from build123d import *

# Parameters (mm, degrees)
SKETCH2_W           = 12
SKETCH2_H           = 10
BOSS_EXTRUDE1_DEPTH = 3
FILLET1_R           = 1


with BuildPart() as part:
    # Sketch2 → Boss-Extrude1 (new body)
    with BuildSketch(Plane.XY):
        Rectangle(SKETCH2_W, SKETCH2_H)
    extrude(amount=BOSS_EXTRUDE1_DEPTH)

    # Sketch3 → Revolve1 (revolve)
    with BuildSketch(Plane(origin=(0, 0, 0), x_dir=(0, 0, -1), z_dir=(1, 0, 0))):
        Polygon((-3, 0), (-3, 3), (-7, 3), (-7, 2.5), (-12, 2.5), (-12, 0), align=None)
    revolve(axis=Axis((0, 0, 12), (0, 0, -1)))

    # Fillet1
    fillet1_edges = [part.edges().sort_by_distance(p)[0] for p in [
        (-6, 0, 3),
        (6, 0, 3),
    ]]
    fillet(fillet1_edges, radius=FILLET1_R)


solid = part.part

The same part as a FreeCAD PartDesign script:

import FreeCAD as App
import Part
import Sketcher
from FreeCAD import Vector


def edges_at(feature, points):
    """Names of the edges that pass closest to the given points."""
    edges = feature.Shape.Edges
    near = lambda p: min(range(len(edges)), key=lambda i: edges[i].distToShape(Part.Vertex(*p))[0])
    return sorted({f"Edge{near(p) + 1}" for p in points})


def add_polygon(sketch, points):
    """Adds a closed chain of lines whose ends are joined by coincident constraints."""
    first, n = sketch.GeometryCount, len(points)
    for a, b in zip(points, points[1:] + points[:1]):
        sketch.addGeometry(Part.LineSegment(App.Vector(*a, 0), App.Vector(*b, 0)), False)
    for i in range(n):
        sketch.addConstraint(Sketcher.Constraint("Coincident", first + i, 2, first + (i + 1) % n, 1))

doc = App.newDocument("Part")
body = doc.addObject("PartDesign::Body", "Body")

# Sketch on XY plane
sketch1 = body.newObject("Sketcher::SketchObject", "Sketch")
sketch1.AttachmentSupport = (doc.getObject("XY_Plane"), [""])
sketch1.MapMode = "FlatFace"
add_polygon(sketch1, [(-6, 5), (-6, -5), (6, -5), (6, 5)])  # lines 0-3
sketch1.addConstraint([
    Sketcher.Constraint("Vertical", 0),
    Sketcher.Constraint("Horizontal", 1),
    Sketcher.Constraint("Vertical", 2),
    Sketcher.Constraint("Horizontal", 3),
    Sketcher.Constraint("Symmetric", 0, 2, 2, 2, -1, 1),
    Sketcher.Constraint("DistanceX", 1, 1, 1, 2, 12.0),
    Sketcher.Constraint("DistanceY", 0, 2, 0, 1, 10.0),
])
pad1 = body.newObject("PartDesign::Pad", "Pad")
pad1.Profile = sketch1
pad1.Length = 3

# Sketch on YZ plane
sketch2 = body.newObject("Sketcher::SketchObject", "Sketch001")
sketch2.AttachmentSupport = (doc.getObject("YZ_Plane"), [""])
sketch2.MapMode = "FlatFace"
add_polygon(sketch2, [(0, 3), (3, 3), (3, 7), (2.5, 7), (2.5, 12), (0, 12)])  # lines 0-5
sketch2.addConstraint([
    Sketcher.Constraint("Horizontal", 0),
    Sketcher.Constraint("Vertical", 1),
    Sketcher.Constraint("Horizontal", 2),
    Sketcher.Constraint("Vertical", 3),
    Sketcher.Constraint("Horizontal", 4),
    Sketcher.Constraint("Vertical", 5),
    Sketcher.Constraint("PointOnObject", 4, 2, -2),
    Sketcher.Constraint("DistanceX", 0, 1, 0, 2, 3.0),
    Sketcher.Constraint("DistanceY", 1, 1, 1, 2, 4.0),
    Sketcher.Constraint("DistanceY", 3, 1, 3, 2, 5.0),
    Sketcher.Constraint("DistanceX", 2, 2, 2, 1, 0.5),
    Sketcher.Constraint("DistanceY", -1, 1, 0, 2, 3.0),
])
revolution = body.newObject("PartDesign::Revolution", "Revolution")
revolution.Profile = sketch2
revolution.ReferenceAxis = (sketch2, ["V_Axis"])
revolution.Angle = 360
doc.recompute()

fillet = body.newObject("PartDesign::Fillet", "Fillet")
fillet.Base = (revolution, edges_at(revolution, [(-6, 0, 3), (6, 0, 3)]))
fillet.Radius = 1

doc.recompute()
